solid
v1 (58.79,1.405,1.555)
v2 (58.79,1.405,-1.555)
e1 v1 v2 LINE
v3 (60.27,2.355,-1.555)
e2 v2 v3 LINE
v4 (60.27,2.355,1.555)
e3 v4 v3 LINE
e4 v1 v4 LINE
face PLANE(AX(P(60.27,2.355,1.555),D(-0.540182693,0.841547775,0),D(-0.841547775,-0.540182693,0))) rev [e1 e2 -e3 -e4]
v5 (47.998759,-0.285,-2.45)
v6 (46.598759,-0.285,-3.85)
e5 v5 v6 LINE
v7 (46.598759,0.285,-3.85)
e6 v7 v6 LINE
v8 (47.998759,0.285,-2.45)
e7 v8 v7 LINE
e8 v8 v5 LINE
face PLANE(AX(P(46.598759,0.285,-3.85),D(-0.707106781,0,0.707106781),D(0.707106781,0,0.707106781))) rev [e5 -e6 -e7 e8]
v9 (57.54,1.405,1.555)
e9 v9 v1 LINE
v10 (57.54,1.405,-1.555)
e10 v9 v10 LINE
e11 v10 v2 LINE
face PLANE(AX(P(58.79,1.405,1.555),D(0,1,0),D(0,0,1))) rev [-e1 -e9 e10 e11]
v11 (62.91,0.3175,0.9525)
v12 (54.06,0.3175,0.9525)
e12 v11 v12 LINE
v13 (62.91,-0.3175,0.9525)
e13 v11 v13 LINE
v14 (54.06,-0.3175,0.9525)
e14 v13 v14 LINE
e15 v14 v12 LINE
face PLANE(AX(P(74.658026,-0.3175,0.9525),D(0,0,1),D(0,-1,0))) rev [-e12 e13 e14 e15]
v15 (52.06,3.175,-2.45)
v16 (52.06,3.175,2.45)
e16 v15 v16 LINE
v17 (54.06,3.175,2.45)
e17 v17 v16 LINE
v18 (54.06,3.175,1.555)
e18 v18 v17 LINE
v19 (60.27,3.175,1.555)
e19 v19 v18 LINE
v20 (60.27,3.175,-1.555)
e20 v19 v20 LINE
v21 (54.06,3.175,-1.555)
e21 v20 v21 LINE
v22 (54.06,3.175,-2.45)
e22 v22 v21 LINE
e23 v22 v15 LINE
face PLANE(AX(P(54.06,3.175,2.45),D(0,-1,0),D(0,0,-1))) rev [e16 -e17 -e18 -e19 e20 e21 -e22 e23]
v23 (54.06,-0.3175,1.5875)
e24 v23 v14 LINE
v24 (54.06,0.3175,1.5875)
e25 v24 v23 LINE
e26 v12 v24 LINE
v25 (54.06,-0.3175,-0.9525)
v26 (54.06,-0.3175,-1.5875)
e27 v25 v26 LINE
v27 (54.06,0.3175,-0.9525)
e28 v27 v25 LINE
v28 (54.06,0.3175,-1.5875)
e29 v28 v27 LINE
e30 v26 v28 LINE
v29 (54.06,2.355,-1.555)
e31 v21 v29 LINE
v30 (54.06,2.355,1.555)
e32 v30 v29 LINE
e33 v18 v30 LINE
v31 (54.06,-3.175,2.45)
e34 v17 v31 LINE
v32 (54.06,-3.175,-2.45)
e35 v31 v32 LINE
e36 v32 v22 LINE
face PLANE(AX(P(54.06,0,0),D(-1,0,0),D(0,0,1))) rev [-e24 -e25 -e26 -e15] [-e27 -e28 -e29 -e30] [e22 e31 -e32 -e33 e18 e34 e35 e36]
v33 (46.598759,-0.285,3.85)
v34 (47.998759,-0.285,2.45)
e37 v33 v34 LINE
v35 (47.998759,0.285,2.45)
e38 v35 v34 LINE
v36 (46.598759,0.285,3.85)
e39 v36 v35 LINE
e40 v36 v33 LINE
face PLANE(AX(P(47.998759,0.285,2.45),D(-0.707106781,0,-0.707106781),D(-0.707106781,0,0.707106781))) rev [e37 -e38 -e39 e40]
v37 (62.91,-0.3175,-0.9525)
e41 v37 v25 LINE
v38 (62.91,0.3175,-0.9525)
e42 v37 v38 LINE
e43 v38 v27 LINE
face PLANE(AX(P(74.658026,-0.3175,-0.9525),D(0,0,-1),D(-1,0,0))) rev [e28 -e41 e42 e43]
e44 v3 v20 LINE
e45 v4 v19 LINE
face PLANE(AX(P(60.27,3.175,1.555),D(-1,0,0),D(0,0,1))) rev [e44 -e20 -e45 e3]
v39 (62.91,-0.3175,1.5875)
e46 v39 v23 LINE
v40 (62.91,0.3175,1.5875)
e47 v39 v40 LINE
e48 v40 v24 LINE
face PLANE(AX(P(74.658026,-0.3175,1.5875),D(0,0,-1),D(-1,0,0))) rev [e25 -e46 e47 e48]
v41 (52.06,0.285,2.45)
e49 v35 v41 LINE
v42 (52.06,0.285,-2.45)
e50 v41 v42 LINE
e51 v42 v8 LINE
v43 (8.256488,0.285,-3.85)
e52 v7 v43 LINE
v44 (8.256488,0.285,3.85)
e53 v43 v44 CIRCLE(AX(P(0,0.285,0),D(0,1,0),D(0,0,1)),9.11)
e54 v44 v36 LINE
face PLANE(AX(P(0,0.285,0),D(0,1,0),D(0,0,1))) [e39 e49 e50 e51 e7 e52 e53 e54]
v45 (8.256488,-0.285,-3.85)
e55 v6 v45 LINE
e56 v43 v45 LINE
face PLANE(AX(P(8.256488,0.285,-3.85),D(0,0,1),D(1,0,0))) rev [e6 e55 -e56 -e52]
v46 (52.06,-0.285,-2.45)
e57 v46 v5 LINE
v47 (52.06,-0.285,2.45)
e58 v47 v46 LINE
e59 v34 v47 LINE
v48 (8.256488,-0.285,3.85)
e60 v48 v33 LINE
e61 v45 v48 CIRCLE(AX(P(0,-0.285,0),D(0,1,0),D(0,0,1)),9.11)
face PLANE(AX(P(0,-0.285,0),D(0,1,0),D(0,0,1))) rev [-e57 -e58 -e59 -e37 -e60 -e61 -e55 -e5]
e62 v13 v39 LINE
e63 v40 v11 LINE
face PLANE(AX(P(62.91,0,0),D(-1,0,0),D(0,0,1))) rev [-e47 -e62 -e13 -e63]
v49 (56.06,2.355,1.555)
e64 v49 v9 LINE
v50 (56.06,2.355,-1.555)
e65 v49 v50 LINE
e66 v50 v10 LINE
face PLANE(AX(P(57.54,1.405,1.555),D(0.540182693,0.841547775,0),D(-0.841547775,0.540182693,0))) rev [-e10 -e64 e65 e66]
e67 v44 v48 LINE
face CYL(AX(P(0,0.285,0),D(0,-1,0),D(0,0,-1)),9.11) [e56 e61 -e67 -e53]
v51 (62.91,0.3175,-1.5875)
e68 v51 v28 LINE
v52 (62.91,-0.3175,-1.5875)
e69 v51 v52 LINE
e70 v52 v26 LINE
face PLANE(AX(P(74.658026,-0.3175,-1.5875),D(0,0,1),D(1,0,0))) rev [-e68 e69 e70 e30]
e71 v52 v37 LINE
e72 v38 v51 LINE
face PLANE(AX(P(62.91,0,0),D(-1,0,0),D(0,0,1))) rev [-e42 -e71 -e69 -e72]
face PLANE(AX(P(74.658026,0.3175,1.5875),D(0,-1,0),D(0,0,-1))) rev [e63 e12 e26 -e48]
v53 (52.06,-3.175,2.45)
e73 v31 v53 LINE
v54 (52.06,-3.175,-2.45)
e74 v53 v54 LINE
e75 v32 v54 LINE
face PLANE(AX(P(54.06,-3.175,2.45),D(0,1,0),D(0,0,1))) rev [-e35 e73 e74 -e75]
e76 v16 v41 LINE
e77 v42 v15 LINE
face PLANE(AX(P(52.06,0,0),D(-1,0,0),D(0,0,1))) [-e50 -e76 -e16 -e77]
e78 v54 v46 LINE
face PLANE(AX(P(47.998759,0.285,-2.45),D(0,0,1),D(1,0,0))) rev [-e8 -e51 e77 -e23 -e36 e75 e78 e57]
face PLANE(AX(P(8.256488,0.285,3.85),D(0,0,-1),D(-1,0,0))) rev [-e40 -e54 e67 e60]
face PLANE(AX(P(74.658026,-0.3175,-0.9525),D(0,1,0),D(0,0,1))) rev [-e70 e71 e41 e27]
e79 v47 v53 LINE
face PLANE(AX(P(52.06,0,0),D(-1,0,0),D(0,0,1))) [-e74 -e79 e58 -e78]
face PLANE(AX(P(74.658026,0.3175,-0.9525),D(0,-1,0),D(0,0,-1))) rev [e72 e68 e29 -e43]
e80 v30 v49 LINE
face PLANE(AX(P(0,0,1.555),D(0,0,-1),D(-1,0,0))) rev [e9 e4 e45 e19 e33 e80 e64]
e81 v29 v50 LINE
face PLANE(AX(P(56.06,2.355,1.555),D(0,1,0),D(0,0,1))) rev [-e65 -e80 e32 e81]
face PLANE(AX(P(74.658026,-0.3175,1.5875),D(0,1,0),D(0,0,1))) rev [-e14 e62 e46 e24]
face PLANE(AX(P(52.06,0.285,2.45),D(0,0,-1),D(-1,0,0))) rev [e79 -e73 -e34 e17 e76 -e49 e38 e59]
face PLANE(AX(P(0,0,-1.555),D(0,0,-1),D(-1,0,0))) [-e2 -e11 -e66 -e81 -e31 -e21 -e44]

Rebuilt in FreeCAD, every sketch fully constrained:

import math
import FreeCAD as App
import Part
import Sketcher


def add_polygon(sketch, points):
    """Adds a closed chain of lines whose ends are joined by coincident constraints."""
    first, n = sketch.GeometryCount, len(points)
    for a, b in zip(points, points[1:] + points[:1]):
        sketch.addGeometry(Part.LineSegment(App.Vector(*a, 0), App.Vector(*b, 0)), False)
    for i in range(n):
        sketch.addConstraint(Sketcher.Constraint("Coincident", first + i, 2, first + (i + 1) % n, 1))

doc = App.newDocument("Part")
body = doc.addObject("PartDesign::Body", "Body")

# Sketch on XZ plane
sketch1 = body.newObject("Sketcher::SketchObject", "Sketch")
sketch1.AttachmentSupport = (doc.getObject("XZ_Plane"), [""])
sketch1.MapMode = "FlatFace"
sketch1.addGeometry([
    Part.LineSegment(App.Vector(46.598759, -3.85, 0), App.Vector(8.256488, -3.85, 0)),  # 0
    Part.ArcOfCircle(Part.Circle(App.Vector(0, 0, 0), App.Vector(0, 0, 1), 9.11), math.radians(24.999637), math.radians(335.000363)),  # 1
    Part.LineSegment(App.Vector(8.256488, 3.85, 0), App.Vector(46.598759, 3.85, 0)),  # 2
    Part.LineSegment(App.Vector(46.598759, 3.85, 0), App.Vector(47.998759, 2.45, 0)),  # 3
    Part.LineSegment(App.Vector(47.998759, 2.45, 0), App.Vector(52.06, 2.45, 0)),  # 4
    Part.LineSegment(App.Vector(52.06, 2.45, 0), App.Vector(52.06, -2.45, 0)),  # 5
    Part.LineSegment(App.Vector(52.06, -2.45, 0), App.Vector(47.998759, -2.45, 0)),  # 6
    Part.LineSegment(App.Vector(47.998759, -2.45, 0), App.Vector(46.598759, -3.85, 0)),  # 7
], False)
sketch1.addConstraint([
    Sketcher.Constraint("Coincident", 0, 2, 1, 2),
    Sketcher.Constraint("Coincident", 1, 1, 2, 1),
    Sketcher.Constraint("Coincident", 2, 2, 3, 1),
    Sketcher.Constraint("Coincident", 3, 2, 4, 1),
    Sketcher.Constraint("Coincident", 4, 2, 5, 1),
    Sketcher.Constraint("Coincident", 5, 2, 6, 1),
    Sketcher.Constraint("Coincident", 6, 2, 7, 1),
    Sketcher.Constraint("Coincident", 7, 2, 0, 1),
    Sketcher.Constraint("Horizontal", 0),
    Sketcher.Constraint("Horizontal", 2),
    Sketcher.Constraint("Horizontal", 4),
    Sketcher.Constraint("Vertical", 5),
    Sketcher.Constraint("Horizontal", 6),
    Sketcher.Constraint("Coincident", 1, 3, -1, 1),
    Sketcher.Constraint("Symmetric", 3, 2, 6, 2, -1),
    Sketcher.Constraint("Symmetric", 2, 2, 7, 2, -1),
    Sketcher.Constraint("Perpendicular", 3, 7),
    Sketcher.Constraint("Radius", 1, 9.11),
    Sketcher.Constraint("DistanceY", 5, 2, 5, 1, 4.9),
    Sketcher.Constraint("DistanceY", 0, 2, 1, 1, 7.7),
    Sketcher.Constraint("DistanceX", -1, 1, 4, 2, 52.06),
    Sketcher.Constraint("DistanceX", 0, 2, 0, 1, 38.34227),
])
pad1 = body.newObject("PartDesign::Pad", "Pad")
pad1.Profile = sketch1
pad1.Length = 0.57
pad1.Midplane = True

# Sketch on YZ plane
sketch2 = body.newObject("Sketcher::SketchObject", "Sketch001")
sketch2.AttachmentSupport = (doc.getObject("YZ_Plane"), [""])
sketch2.MapMode = "FlatFace"
sketch2.AttachmentOffset = App.Placement(App.Vector(0, 0, 52.06), App.Rotation())
add_polygon(sketch2, [(3.175, 2.45), (-3.175, 2.45), (-3.175, -2.45), (3.175, -2.45)])  # lines 0-3
sketch2.addConstraint([
    Sketcher.Constraint("Horizontal", 0),
    Sketcher.Constraint("Vertical", 1),
    Sketcher.Constraint("Horizontal", 2),
    Sketcher.Constraint("Vertical", 3),
    Sketcher.Constraint("Symmetric", 0, 2, 2, 2, -1, 1),
    Sketcher.Constraint("DistanceY", 1, 2, 1, 1, 4.9),
    Sketcher.Constraint("DistanceX", 0, 2, 0, 1, 6.35),
])
pad2 = body.newObject("PartDesign::Pad", "Pad001")
pad2.Profile = sketch2
pad2.Length = 2

# Sketch on XY plane
sketch3 = body.newObject("Sketcher::SketchObject", "Sketch002")
sketch3.AttachmentSupport = (doc.getObject("XY_Plane"), [""])
sketch3.MapMode = "FlatFace"
add_polygon(sketch3, [(60.27, 3.175), (54.06, 3.175), (54.06, 2.355), (56.06, 2.355), (57.54, 1.405), (58.79, 1.405), (60.27, 2.355)])  # lines 0-6
sketch3.addConstraint([
    Sketcher.Constraint("Horizontal", 0),
    Sketcher.Constraint("Vertical", 1),
    Sketcher.Constraint("Horizontal", 2),
    Sketcher.Constraint("Horizontal", 4),
    Sketcher.Constraint("Vertical", 6),
    Sketcher.Constraint("Horizontal", 2, 2, 5, 2),
    Sketcher.Constraint("Equal", 3, 5),
    Sketcher.Constraint("DistanceX", 2, 1, 2, 2, 2.0),
    Sketcher.Constraint("DistanceX", 0, 2, 0, 1, 6.21),
    Sketcher.Constraint("DistanceX", 4, 1, 4, 2, 1.25),
    Sketcher.Constraint("DistanceY", 1, 2, 1, 1, 0.82),
    Sketcher.Constraint("DistanceX", -1, 1, 0, 2, 54.06),
    Sketcher.Constraint("DistanceY", 3, 2, 2, 2, 0.95),
    Sketcher.Constraint("DistanceY", -1, 1, 0, 2, 3.175),
])
pad3 = body.newObject("PartDesign::Pad", "Pad002")
pad3.Profile = sketch3
pad3.Length = 3.11
pad3.Midplane = True

# Sketch on YZ plane
sketch4 = body.newObject("Sketcher::SketchObject", "Sketch003")
sketch4.AttachmentSupport = (doc.getObject("YZ_Plane"), [""])
sketch4.MapMode = "FlatFace"
sketch4.AttachmentOffset = App.Placement(App.Vector(0, 0, 54.06), App.Rotation())
add_polygon(sketch4, [(0.3175, 1.5875), (-0.3175, 1.5875), (-0.3175, 0.9525), (0.3175, 0.9525)])  # lines 0-3
add_polygon(sketch4, [(0.3175, -0.9525), (-0.3175, -0.9525), (-0.3175, -1.5875), (0.3175, -1.5875)])  # lines 4-7
sketch4.addConstraint([
    Sketcher.Constraint("Horizontal", 0),
    Sketcher.Constraint("Vertical", 1),
    Sketcher.Constraint("Horizontal", 2),
    Sketcher.Constraint("Vertical", 3),
    Sketcher.Constraint("Horizontal", 4),
    Sketcher.Constraint("Vertical", 5),
    Sketcher.Constraint("Horizontal", 6),
    Sketcher.Constraint("Vertical", 7),
    Sketcher.Constraint("Symmetric", 2, 2, 4, 2, -1, 1),
    Sketcher.Constraint("Symmetric", 0, 2, 6, 2, -1, 1),
    Sketcher.Constraint("Vertical", 1, 2, 4, 2),
    Sketcher.Constraint("Equal", 6, 1),
    Sketcher.Constraint("DistanceX", 0, 2, 0, 1, 0.635),
    Sketcher.Constraint("DistanceY", 4, 2, 0, 2, 2.54),
])
pad4 = body.newObject("PartDesign::Pad", "Pad003")
pad4.Profile = sketch4
pad4.Length = 8.85

doc.recompute()
